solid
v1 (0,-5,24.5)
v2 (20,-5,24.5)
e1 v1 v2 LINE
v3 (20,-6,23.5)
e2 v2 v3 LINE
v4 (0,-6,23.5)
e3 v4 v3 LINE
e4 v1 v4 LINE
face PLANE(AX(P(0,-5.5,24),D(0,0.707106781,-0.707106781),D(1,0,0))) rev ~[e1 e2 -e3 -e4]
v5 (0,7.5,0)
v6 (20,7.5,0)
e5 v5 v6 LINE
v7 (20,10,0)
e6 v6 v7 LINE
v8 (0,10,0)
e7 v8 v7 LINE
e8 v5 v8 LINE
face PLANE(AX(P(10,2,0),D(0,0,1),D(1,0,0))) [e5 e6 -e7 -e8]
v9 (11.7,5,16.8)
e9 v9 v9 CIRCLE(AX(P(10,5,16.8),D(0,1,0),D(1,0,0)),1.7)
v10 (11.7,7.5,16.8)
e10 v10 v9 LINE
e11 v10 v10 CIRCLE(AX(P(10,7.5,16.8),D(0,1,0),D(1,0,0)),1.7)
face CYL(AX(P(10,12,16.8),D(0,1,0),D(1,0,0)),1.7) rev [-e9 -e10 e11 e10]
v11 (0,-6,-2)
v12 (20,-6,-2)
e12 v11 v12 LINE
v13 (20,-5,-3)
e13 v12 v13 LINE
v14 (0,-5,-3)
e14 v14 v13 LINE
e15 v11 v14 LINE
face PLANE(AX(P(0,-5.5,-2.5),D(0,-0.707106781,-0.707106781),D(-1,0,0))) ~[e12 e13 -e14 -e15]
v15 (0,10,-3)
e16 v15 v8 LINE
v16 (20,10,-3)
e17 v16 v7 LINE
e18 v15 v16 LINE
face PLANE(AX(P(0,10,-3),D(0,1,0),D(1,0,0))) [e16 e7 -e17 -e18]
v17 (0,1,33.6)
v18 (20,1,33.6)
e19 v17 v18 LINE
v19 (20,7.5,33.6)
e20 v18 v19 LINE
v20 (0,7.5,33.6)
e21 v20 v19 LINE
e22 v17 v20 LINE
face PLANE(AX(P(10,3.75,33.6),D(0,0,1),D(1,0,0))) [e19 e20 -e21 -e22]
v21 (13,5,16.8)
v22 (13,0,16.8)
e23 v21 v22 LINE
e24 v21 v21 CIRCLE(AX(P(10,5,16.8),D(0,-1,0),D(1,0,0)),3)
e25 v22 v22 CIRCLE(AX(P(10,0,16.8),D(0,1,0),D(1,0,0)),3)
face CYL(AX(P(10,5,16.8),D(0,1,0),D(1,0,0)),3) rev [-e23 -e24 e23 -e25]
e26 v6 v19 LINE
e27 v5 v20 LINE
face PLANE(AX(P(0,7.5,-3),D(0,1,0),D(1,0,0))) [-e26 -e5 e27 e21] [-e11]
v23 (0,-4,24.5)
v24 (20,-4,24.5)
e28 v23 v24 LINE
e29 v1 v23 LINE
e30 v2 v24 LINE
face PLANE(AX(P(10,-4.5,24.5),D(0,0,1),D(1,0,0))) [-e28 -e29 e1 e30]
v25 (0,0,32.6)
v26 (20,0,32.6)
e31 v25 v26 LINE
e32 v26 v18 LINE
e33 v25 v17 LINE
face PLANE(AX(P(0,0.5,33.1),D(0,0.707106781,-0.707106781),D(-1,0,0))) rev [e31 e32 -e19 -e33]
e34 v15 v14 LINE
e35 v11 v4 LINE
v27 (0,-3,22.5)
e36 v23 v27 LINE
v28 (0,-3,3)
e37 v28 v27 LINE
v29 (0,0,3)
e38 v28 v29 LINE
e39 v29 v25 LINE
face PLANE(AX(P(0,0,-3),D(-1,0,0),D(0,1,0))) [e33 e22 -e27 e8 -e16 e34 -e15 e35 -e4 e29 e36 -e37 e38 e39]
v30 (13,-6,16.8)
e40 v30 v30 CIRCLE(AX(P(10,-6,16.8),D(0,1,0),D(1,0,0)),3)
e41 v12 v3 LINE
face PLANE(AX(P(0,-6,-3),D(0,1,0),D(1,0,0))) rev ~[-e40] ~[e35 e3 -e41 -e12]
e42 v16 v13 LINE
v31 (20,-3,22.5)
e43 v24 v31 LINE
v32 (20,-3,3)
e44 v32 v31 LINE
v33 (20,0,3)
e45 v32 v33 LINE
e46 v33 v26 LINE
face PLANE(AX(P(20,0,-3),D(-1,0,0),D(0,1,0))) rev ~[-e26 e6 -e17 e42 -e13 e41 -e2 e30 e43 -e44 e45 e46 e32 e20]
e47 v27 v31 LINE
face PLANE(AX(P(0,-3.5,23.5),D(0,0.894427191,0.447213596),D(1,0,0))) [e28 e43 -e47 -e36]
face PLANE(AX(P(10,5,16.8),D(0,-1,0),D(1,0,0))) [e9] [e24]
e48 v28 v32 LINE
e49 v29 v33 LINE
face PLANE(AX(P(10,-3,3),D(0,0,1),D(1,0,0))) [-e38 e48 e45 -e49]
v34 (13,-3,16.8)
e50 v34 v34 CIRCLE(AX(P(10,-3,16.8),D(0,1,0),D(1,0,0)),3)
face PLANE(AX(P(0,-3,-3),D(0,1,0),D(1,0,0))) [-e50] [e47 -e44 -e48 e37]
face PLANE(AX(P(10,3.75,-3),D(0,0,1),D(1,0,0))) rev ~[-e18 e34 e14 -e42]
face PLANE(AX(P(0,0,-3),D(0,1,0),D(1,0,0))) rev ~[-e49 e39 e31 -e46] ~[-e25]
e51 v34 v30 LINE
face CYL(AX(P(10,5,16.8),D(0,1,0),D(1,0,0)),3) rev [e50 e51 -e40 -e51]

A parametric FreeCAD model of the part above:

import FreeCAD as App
import Part
import Sketcher


def edges_at(feature, points):
    """Names of the edges that pass closest to the given points."""
    edges = feature.Shape.Edges
    near = lambda p: min(range(len(edges)), key=lambda i: edges[i].distToShape(Part.Vertex(*p))[0])
    return sorted({f"Edge{near(p) + 1}" for p in points})


def add_polygon(sketch, points):
    """Adds a closed chain of lines whose ends are joined by coincident constraints."""
    first, n = sketch.GeometryCount, len(points)
    for a, b in zip(points, points[1:] + points[:1]):
        sketch.addGeometry(Part.LineSegment(App.Vector(*a, 0), App.Vector(*b, 0)), False)
    for i in range(n):
        sketch.addConstraint(Sketcher.Constraint("Coincident", first + i, 2, first + (i + 1) % n, 1))

doc = App.newDocument("Part")
body = doc.addObject("PartDesign::Body", "Body")

# Sketch on XZ plane
sketch1 = body.newObject("Sketcher::SketchObject", "Sketch")
sketch1.AttachmentSupport = (doc.getObject("XZ_Plane"), [""])
sketch1.MapMode = "FlatFace"
sketch1.AttachmentOffset = App.Placement(App.Vector(0, 0, -12), App.Rotation())
sketch1.addGeometry(Part.Circle(App.Vector(10, 16.8, 0), App.Vector(0, 0, 1), 1.7), False)
sketch1.addConstraint([
    Sketcher.Constraint("Diameter", 0, 3.4),
    Sketcher.Constraint("DistanceX", -1, 1, 0, 3, 10.0),
    Sketcher.Constraint("DistanceY", -1, 1, 0, 3, 16.8),
])
pad1 = body.newObject("PartDesign::Pad", "Pad")
pad1.Profile = sketch1
pad1.Length = 20
body2 = doc.addObject("PartDesign::Body", "Body001")

# Sketch on XZ plane
sketch2 = body2.newObject("Sketcher::SketchObject", "Sketch001")
sketch2.AttachmentSupport = (doc.getObject("XZ_Plane001"), [""])
sketch2.MapMode = "FlatFace"
sketch2.AttachmentOffset = App.Placement(App.Vector(0, 0, -5), App.Rotation())
sketch2.addGeometry(Part.Circle(App.Vector(10, 16.8, 0), App.Vector(0, 0, 1), 3), False)
sketch2.addConstraint([
    Sketcher.Constraint("Diameter", 0, 6.0),
    Sketcher.Constraint("DistanceX", -1, 1, 0, 3, 10.0),
    Sketcher.Constraint("DistanceY", -1, 1, 0, 3, 16.8),
])
pad2 = body2.newObject("PartDesign::Pad", "Pad001")
pad2.Profile = sketch2
pad2.Length = 20
body3 = doc.addObject("PartDesign::Body", "Body002")

# Sketch on XY plane
sketch3 = body3.newObject("Sketcher::SketchObject", "Sketch002")
sketch3.AttachmentSupport = (doc.getObject("XY_Plane002"), [""])
sketch3.MapMode = "FlatFace"
sketch3.AttachmentOffset = App.Placement(App.Vector(0, 0, -3), App.Rotation())
add_polygon(sketch3, [(0, 0), (0, -6), (20, -6), (20, 0)])  # lines 0-3
sketch3.addConstraint([
    Sketcher.Constraint("Vertical", 0),
    Sketcher.Constraint("Horizontal", 1),
    Sketcher.Constraint("Vertical", 2),
    Sketcher.Constraint("Horizontal", 3),
    Sketcher.Constraint("Coincident", 3, 2, -1, 1),
    Sketcher.Constraint("DistanceX", 1, 1, 1, 2, 20.0),
    Sketcher.Constraint("DistanceY", 0, 2, 0, 1, 6.0),
])
pad3 = body3.newObject("PartDesign::Pad", "Pad002")
pad3.Profile = sketch3
pad3.Length = 6
body4 = doc.addObject("PartDesign::Body", "Body003")

# Sketch on XY plane
sketch4 = body4.newObject("Sketcher::SketchObject", "Sketch003")
sketch4.AttachmentSupport = (doc.getObject("XY_Plane003"), [""])
sketch4.MapMode = "FlatFace"
sketch4.AttachmentOffset = App.Placement(App.Vector(0, 0, -3), App.Rotation())
add_polygon(sketch4, [(0, 8), (0, 0), (20, 0), (20, 8)])  # lines 0-3
sketch4.addConstraint([
    Sketcher.Constraint("Vertical", 0),
    Sketcher.Constraint("Horizontal", 1),
    Sketcher.Constraint("Vertical", 2),
    Sketcher.Constraint("Horizontal", 3),
    Sketcher.Constraint("Coincident", 0, 2, -1, 1),
    Sketcher.Constraint("DistanceX", 1, 1, 1, 2, 20.0),
    Sketcher.Constraint("DistanceY", 0, 2, 0, 1, 7.5),
])
pad4 = body4.newObject("PartDesign::Pad", "Pad003")
pad4.Profile = sketch4
pad4.Length = 36.6
body5 = doc.addObject("PartDesign::Body", "Body004")

# Sketch on XY plane
sketch5 = body5.newObject("Sketcher::SketchObject", "Sketch004")
sketch5.AttachmentSupport = (doc.getObject("XY_Plane004"), [""])
sketch5.MapMode = "FlatFace"
sketch5.AttachmentOffset = App.Placement(App.Vector(0, 0, -3), App.Rotation())
add_polygon(sketch5, [(0, 10), (0, -6), (20, -6), (20, 10)])  # lines 0-3
sketch5.addConstraint([
    Sketcher.Constraint("Vertical", 0),
    Sketcher.Constraint("Horizontal", 1),
    Sketcher.Constraint("Vertical", 2),
    Sketcher.Constraint("Horizontal", 3),
    Sketcher.Constraint("PointOnObject", 0, 2, -2),
    Sketcher.Constraint("DistanceX", 1, 1, 1, 2, 20.0),
    Sketcher.Constraint("DistanceY", 0, 2, 0, 1, 16.0),
    Sketcher.Constraint("DistanceY", 0, 2, -1, 1, 6.0),
])
pad5 = body5.newObject("PartDesign::Pad", "Pad004")
pad5.Profile = sketch5
pad5.Length = 3
body6 = doc.addObject("PartDesign::Body", "Body005")

# Sketch on XY plane
sketch6 = body6.newObject("Sketcher::SketchObject", "Sketch005")
sketch6.AttachmentSupport = (doc.getObject("XY_Plane005"), [""])
sketch6.MapMode = "FlatFace"
sketch6.AttachmentOffset = App.Placement(App.Vector(0, 0, -3), App.Rotation())
add_polygon(sketch6, [(0, -3), (0, -6), (20, -6), (20, -3)])  # lines 0-3
sketch6.addConstraint([
    Sketcher.Constraint("Vertical", 0),
    Sketcher.Constraint("Horizontal", 1),
    Sketcher.Constraint("Vertical", 2),
    Sketcher.Constraint("Horizontal", 3),
    Sketcher.Constraint("PointOnObject", 0, 2, -2),
    Sketcher.Constraint("DistanceX", 1, 1, 1, 2, 20.0),
    Sketcher.Constraint("DistanceY", 0, 2, 0, 1, 3.0),
    Sketcher.Constraint("DistanceY", 0, 2, -1, 1, 6.0),
])
pad6 = body6.newObject("PartDesign::Pad", "Pad005")
pad6.Profile = sketch6
pad6.Length = 27.5
doc.recompute()

boolean = body6.newObject("PartDesign::Boolean", "Boolean")
boolean.Type = "Fuse"
boolean.addObjects([body3])
doc.recompute()

boolean2 = body6.newObject("PartDesign::Boolean", "Boolean001")
boolean2.Type = "Fuse"
boolean2.addObjects([body4])
doc.recompute()

boolean3 = body6.newObject("PartDesign::Boolean", "Boolean002")
boolean3.Type = "Fuse"
boolean3.addObjects([body5])
doc.recompute()

chamfer = body6.newObject("PartDesign::Chamfer", "Chamfer")
chamfer.Base = (boolean3, edges_at(boolean3, [(10, -3, 24.5)]))
chamfer.ChamferType = "Two distances"
chamfer.Size = 1
chamfer.Size2 = 2
doc.recompute()

chamfer2 = body6.newObject("PartDesign::Chamfer", "Chamfer001")
chamfer2.Base = (chamfer, edges_at(chamfer, [(10, -6, 24.5), (10, -6, -3), (10, 0, 33.6)]))
chamfer2.Size = 1
doc.recompute()

boolean4 = body6.newObject("PartDesign::Boolean", "Boolean003")
boolean4.Type = "Cut"
boolean4.addObjects([body2])
doc.recompute()

boolean5 = body6.newObject("PartDesign::Boolean", "Boolean004")
boolean5.Type = "Cut"
boolean5.addObjects([body])

doc.recompute()
